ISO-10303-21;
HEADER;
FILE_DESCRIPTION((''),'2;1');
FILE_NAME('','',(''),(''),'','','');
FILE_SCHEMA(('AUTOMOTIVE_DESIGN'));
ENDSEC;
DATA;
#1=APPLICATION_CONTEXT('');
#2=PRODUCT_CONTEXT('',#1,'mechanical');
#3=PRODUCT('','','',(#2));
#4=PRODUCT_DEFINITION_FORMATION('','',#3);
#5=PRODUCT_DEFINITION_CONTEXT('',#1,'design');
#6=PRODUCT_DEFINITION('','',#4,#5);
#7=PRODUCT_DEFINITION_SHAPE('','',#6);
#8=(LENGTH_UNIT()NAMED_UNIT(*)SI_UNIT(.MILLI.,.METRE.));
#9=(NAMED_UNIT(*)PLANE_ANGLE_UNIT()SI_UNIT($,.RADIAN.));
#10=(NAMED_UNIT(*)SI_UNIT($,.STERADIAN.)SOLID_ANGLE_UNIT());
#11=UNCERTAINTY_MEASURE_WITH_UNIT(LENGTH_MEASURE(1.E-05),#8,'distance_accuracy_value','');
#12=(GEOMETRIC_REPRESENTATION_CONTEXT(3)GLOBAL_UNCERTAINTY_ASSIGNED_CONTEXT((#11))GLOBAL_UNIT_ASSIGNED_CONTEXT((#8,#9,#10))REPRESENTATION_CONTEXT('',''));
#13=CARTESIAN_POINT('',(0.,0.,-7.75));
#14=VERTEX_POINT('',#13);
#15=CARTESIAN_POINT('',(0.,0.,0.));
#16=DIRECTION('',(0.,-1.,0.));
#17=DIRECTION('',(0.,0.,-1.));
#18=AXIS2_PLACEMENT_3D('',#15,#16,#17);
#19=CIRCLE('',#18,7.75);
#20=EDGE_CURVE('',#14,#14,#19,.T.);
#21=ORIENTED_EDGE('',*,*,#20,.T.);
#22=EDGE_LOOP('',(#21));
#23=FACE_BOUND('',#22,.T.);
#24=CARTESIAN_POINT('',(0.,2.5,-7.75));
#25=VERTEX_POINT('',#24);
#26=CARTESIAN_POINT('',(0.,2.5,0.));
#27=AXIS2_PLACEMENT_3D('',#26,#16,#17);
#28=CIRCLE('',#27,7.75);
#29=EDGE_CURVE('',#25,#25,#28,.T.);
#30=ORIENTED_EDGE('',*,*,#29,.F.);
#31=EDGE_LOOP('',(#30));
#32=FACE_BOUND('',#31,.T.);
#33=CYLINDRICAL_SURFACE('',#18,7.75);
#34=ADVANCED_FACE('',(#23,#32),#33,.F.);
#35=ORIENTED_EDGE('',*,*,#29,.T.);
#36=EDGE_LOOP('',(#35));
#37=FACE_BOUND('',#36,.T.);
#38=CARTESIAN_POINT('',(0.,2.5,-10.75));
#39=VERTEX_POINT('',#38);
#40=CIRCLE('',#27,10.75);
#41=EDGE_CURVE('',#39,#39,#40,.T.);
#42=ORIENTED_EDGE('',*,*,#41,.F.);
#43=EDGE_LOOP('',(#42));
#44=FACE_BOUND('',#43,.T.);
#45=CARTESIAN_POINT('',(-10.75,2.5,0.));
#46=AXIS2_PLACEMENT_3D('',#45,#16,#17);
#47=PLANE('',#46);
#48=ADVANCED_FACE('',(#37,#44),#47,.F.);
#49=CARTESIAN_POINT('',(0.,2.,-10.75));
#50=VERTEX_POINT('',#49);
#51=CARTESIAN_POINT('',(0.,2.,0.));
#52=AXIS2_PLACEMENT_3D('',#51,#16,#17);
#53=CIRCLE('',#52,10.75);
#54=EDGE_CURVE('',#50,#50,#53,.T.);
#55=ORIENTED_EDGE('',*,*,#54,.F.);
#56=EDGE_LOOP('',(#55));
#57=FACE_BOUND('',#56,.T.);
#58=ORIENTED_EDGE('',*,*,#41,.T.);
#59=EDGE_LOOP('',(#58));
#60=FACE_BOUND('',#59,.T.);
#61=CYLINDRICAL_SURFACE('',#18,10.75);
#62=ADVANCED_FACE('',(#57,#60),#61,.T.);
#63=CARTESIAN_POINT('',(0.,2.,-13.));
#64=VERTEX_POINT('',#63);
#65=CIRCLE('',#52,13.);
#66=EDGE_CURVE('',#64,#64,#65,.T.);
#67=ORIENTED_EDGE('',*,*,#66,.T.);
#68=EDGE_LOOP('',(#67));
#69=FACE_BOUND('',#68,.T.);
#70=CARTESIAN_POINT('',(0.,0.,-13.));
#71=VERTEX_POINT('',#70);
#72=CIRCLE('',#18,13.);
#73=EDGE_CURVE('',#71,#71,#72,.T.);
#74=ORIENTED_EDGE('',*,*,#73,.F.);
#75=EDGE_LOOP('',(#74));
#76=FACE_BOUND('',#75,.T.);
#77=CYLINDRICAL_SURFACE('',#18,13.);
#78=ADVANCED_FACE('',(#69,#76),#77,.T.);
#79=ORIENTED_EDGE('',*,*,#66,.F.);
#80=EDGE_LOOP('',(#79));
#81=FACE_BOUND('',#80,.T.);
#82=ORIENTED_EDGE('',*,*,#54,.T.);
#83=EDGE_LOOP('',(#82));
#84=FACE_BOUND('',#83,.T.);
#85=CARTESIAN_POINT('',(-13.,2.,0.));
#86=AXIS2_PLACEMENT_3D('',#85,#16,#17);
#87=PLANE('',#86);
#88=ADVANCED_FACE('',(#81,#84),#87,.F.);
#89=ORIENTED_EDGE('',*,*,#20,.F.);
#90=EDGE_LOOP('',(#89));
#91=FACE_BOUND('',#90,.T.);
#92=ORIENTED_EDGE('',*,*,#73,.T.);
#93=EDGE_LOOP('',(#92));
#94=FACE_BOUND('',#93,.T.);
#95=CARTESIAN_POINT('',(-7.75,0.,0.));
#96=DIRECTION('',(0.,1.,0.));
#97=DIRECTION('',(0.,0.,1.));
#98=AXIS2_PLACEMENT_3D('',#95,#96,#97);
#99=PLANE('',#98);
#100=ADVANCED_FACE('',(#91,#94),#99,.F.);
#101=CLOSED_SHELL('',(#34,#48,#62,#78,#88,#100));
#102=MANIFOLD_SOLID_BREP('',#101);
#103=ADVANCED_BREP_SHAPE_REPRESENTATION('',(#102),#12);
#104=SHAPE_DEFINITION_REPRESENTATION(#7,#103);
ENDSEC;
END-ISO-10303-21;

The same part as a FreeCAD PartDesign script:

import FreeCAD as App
import Part
import Sketcher
Q = App.Units.Quantity


def add_polygon(sketch, points):
    """Adds a closed chain of lines whose ends are joined by coincident constraints."""
    first, n = sketch.GeometryCount, len(points)
    for a, b in zip(points, points[1:] + points[:1]):
        sketch.addGeometry(Part.LineSegment(App.Vector(*a, 0), App.Vector(*b, 0)), False)
    for i in range(n):
        sketch.addConstraint(Sketcher.Constraint("Coincident", first + i, 2, first + (i + 1) % n, 1))

doc = App.newDocument("Part")
body = doc.addObject("PartDesign::Body", "Body")

sketch1 = body.newObject("Sketcher::SketchObject", "Sketch")
sketch1.AttachmentSupport = (doc.getObject("XY_Plane"), [""])
sketch1.MapMode = "FlatFace"
add_polygon(sketch1, [(-13, 0), (-7.75, 0), (-7.75, 2.5), (-10.75, 2.5), (-10.75, 2), (-13, 2)])
sketch1.addConstraint(Sketcher.Constraint("Horizontal", 0))
sketch1.addConstraint(Sketcher.Constraint("Vertical", 1))
sketch1.addConstraint(Sketcher.Constraint("Horizontal", 2))
sketch1.addConstraint(Sketcher.Constraint("Vertical", 3))
sketch1.addConstraint(Sketcher.Constraint("Horizontal", 4))
sketch1.addConstraint(Sketcher.Constraint("Vertical", 5))
sketch1.addConstraint(Sketcher.Constraint("PointOnObject", 0, 2, -1))
sketch1.addConstraint(Sketcher.Constraint("DistanceX", 2, 2, 2, 1, Q("3 mm")))
sketch1.addConstraint(Sketcher.Constraint("DistanceY", 5, 2, 5, 1, Q("2 mm")))
sketch1.addConstraint(Sketcher.Constraint("DistanceY", 1, 1, 1, 2, Q("2.5 mm")))
sketch1.addConstraint(Sketcher.Constraint("DistanceX", 4, 2, -1, 1, Q("13 mm")))
sketch1.addConstraint(Sketcher.Constraint("DistanceX", 0, 1, 0, 2, Q("5.25 mm")))
revolution = body.newObject("PartDesign::Revolution", "Revolution")
revolution.Profile = sketch1
revolution.ReferenceAxis = (sketch1, ["V_Axis"])
revolution.Angle = 360

doc.recompute()
